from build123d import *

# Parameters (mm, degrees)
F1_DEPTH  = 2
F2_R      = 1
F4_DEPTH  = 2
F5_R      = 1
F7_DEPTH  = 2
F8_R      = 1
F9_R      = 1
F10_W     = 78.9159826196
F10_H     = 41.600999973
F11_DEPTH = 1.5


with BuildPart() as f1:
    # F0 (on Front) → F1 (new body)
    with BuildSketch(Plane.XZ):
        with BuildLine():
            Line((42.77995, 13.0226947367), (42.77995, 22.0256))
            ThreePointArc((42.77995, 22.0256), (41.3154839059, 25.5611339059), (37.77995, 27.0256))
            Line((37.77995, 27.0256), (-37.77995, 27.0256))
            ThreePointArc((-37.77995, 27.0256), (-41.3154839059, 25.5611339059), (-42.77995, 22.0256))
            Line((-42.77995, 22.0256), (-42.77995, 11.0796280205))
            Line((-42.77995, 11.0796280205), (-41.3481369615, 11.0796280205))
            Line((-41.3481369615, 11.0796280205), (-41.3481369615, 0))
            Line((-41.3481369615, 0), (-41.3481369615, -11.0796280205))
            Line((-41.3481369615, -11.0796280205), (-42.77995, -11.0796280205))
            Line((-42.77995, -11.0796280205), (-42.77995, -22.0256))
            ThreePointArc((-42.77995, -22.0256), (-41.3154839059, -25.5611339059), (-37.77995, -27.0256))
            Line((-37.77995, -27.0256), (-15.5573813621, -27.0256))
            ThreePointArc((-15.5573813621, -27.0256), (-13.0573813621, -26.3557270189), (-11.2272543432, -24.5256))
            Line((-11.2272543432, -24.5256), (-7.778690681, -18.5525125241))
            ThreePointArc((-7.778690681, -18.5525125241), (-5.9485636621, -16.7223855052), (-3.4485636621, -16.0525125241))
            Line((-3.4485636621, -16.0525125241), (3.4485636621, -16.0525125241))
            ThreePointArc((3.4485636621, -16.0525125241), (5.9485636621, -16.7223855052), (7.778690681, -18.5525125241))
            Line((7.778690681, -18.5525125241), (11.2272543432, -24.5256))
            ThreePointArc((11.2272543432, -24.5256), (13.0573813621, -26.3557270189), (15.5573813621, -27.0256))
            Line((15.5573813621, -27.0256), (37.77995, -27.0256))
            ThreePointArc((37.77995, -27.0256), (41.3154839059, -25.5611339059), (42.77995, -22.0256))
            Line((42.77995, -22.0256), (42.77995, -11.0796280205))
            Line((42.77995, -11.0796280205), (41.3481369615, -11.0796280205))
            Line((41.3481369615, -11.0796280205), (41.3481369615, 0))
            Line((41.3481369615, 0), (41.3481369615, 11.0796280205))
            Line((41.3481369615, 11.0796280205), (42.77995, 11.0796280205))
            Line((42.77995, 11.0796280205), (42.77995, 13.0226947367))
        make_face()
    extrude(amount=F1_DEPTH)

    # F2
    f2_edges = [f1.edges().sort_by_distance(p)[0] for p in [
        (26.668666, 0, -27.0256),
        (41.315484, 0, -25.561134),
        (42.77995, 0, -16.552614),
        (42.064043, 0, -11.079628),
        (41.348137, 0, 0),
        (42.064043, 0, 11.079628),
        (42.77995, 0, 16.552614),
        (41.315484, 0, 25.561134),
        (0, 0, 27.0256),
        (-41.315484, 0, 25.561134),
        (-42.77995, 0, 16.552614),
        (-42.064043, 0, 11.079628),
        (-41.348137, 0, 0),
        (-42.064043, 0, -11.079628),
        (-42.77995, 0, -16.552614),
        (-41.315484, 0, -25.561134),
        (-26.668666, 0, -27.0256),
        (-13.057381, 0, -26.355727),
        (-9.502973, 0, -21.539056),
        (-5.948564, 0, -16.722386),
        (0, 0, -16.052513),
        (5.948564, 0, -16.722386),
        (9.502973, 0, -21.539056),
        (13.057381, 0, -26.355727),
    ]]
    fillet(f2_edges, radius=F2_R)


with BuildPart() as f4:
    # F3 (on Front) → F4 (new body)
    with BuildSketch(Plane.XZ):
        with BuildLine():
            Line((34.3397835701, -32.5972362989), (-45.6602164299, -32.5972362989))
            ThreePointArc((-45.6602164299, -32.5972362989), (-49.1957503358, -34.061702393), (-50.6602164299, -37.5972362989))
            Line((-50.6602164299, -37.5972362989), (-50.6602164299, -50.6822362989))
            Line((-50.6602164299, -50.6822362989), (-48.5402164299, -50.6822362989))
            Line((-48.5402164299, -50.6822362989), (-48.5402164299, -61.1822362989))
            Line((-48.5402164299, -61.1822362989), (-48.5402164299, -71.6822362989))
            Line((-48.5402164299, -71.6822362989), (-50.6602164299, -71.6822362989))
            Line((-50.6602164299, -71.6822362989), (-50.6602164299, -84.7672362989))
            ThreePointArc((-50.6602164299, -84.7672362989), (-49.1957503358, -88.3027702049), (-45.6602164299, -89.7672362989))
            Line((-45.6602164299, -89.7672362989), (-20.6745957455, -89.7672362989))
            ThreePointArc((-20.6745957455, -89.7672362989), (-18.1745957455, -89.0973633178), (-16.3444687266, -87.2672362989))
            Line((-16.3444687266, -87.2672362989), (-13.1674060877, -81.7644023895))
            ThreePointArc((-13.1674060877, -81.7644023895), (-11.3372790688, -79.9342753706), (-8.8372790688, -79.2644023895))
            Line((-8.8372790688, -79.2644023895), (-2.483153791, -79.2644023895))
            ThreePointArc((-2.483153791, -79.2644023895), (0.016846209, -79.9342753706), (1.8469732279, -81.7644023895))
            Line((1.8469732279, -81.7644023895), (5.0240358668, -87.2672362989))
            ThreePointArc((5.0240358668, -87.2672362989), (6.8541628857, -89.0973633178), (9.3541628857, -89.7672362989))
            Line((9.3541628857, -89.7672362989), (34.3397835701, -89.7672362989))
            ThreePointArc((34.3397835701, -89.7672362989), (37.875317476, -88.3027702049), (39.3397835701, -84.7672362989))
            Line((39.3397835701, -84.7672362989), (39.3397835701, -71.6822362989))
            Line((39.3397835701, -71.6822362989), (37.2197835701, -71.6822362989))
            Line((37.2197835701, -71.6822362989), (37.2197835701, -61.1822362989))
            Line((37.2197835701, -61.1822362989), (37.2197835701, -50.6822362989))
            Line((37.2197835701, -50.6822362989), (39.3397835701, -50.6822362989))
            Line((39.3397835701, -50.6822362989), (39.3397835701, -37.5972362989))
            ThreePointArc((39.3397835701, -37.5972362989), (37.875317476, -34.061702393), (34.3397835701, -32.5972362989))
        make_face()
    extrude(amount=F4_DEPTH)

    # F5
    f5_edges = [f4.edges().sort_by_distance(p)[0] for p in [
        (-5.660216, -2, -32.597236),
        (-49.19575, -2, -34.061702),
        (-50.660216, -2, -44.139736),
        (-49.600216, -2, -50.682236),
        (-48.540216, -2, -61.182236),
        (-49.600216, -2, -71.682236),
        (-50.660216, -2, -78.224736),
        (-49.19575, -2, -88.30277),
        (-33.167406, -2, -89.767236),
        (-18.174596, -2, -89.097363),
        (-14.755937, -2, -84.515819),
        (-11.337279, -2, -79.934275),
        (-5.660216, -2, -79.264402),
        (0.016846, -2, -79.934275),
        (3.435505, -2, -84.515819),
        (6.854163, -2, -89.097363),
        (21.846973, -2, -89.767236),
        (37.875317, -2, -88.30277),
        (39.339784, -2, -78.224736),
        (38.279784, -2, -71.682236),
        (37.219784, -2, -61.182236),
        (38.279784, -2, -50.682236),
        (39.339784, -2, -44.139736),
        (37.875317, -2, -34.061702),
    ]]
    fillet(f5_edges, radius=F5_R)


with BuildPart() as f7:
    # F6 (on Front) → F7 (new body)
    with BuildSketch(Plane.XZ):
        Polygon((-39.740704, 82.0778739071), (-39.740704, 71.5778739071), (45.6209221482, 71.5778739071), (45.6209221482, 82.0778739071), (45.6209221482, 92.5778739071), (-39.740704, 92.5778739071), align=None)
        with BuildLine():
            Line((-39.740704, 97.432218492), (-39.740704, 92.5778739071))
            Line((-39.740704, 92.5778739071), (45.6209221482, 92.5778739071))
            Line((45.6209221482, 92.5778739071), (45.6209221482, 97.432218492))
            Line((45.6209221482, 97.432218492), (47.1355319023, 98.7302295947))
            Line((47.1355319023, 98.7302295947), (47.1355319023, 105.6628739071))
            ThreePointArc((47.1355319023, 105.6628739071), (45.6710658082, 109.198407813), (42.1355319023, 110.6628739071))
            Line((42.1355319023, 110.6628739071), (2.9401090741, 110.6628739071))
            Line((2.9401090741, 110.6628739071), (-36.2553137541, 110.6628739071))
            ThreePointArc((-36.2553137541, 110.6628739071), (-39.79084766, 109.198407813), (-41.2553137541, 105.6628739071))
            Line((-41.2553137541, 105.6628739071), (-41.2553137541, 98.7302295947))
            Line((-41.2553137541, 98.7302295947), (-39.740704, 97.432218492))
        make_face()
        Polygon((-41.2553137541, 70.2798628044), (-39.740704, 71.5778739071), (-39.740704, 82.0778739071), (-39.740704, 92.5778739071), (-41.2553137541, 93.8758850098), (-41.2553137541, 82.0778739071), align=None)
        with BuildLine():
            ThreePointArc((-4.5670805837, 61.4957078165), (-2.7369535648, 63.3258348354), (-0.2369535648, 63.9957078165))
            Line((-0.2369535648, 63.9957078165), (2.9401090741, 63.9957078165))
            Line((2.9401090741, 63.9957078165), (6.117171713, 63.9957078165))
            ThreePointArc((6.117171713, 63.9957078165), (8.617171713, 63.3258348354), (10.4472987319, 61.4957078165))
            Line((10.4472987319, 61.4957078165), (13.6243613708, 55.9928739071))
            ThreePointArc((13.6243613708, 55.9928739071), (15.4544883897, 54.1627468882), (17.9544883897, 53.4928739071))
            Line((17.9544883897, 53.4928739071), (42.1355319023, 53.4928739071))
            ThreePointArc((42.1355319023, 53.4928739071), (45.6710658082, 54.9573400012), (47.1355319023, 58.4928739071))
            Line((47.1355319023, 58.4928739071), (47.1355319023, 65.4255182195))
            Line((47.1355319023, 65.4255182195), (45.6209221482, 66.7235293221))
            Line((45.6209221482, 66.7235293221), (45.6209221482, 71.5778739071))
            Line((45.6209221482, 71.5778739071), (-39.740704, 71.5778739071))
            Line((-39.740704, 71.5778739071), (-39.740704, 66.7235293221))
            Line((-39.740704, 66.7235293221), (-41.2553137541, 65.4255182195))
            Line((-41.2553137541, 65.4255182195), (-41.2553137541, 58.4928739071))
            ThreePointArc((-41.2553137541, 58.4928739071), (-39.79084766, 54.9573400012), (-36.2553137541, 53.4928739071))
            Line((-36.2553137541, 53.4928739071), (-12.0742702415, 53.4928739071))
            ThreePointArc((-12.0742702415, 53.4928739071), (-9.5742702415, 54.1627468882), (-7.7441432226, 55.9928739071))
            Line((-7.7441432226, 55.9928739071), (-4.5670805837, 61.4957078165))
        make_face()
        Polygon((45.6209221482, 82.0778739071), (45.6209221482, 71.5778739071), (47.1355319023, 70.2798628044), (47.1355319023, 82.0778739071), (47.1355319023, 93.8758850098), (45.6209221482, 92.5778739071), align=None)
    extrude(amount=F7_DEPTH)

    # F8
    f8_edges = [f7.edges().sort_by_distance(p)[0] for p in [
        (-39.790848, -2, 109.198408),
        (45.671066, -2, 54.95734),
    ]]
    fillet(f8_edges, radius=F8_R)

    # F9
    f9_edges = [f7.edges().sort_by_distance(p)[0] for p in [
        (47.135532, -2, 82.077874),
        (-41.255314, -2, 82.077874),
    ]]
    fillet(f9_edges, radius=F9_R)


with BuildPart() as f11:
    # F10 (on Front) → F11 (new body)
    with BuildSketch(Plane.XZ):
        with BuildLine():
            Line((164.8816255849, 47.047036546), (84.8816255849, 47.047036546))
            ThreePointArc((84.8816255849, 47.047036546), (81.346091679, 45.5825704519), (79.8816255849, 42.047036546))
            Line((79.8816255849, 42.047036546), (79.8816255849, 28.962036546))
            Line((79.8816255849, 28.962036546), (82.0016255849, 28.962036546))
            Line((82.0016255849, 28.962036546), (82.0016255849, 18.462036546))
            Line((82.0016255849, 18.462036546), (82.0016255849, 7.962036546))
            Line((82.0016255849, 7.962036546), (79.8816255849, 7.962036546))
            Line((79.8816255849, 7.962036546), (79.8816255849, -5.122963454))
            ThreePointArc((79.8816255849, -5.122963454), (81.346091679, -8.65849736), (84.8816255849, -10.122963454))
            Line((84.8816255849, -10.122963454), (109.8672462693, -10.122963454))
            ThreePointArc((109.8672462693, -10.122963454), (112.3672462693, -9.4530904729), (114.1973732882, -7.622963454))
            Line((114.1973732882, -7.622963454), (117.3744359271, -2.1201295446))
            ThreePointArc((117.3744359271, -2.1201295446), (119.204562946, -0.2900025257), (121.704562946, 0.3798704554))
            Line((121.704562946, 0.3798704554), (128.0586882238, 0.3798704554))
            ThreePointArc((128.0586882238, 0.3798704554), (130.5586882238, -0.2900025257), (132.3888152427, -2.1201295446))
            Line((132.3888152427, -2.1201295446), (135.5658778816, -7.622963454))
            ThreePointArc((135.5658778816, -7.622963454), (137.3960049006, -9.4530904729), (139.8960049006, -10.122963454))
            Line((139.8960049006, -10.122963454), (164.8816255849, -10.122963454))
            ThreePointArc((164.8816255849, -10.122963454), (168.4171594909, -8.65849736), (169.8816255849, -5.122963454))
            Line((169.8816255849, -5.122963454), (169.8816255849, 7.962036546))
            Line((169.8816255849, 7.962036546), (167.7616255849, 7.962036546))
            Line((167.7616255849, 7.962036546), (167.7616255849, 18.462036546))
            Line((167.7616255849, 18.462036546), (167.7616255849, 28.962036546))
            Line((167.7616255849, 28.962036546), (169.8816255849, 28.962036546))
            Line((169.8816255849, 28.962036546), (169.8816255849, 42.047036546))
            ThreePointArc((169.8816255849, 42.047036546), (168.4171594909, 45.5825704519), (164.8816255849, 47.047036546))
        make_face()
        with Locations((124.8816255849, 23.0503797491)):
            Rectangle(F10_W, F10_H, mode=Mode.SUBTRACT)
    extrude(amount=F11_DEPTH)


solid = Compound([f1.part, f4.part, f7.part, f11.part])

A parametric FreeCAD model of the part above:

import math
import FreeCAD as App
import Part
import Sketcher

V = App.Vector
Q = App.Units.Quantity


def edges_at(feature, points):
    """Names of the edges that pass closest to the given points."""
    edges = feature.Shape.Edges
    near = lambda p: min(range(len(edges)), key=lambda i: edges[i].distToShape(Part.Vertex(*p))[0])
    return sorted({f"Edge{near(p) + 1}" for p in points})


def add_polygon(sketch, points):
    """Adds a closed chain of lines whose ends are joined by coincident constraints."""
    first, n = sketch.GeometryCount, len(points)
    for a, b in zip(points, points[1:] + points[:1]):
        sketch.addGeometry(Part.LineSegment(App.Vector(*a, 0), App.Vector(*b, 0)), False)
    for i in range(n):
        sketch.addConstraint(Sketcher.Constraint("Coincident", first + i, 2, first + (i + 1) % n, 1))

doc = App.newDocument("Part")
body = doc.addObject("PartDesign::Body", "Body")

# Sketch on XZ plane
sketch1 = doc.addObject("Sketcher::SketchObject", "Sketch")
body.addObject(sketch1)
sketch1.AttachmentSupport = (doc.XZ_Plane, [""])
sketch1.MapMode = "FlatFace"
sketch1.addGeometry([
    Part.ArcOfCircle(Part.Circle(V(37.8, 22, 0), V(0, 0, 1), 5), math.radians(0), math.radians(90)),  # 0
    Part.LineSegment(V(37.8, 27, 0), V(-37.8, 27, 0)),  # 1
    Part.ArcOfCircle(Part.Circle(V(-37.8, 22, 0), V(0, 0, 1), 5), math.radians(90), math.radians(180)),  # 2
    Part.LineSegment(V(-42.8, 22, 0), V(-42.8, 11.1, 0)),  # 3
    Part.LineSegment(V(-42.8, 11.1, 0), V(-41.3, 11.1, 0)),  # 4
    Part.LineSegment(V(-41.3, 11.1, 0), V(-41.3, -11.1, 0)),  # 5
    Part.LineSegment(V(-41.3, -11.1, 0), V(-42.8, -11.1, 0)),  # 6
    Part.LineSegment(V(-42.8, -11.1, 0), V(-42.8, -22, 0)),  # 7
    Part.ArcOfCircle(Part.Circle(V(-37.8, -22, 0), V(0, 0, 1), 5), math.radians(180), math.radians(270)),  # 8
    Part.LineSegment(V(-37.8, -27, 0), V(-15.6, -27, 0)),  # 9
    Part.ArcOfCircle(Part.Circle(V(-15.6, -22, 0), V(0, 0, 1), 5), math.radians(-90), math.radians(-30)),  # 10
    Part.LineSegment(V(-11.2, -24.5, 0), V(-7.8, -18.6, 0)),  # 11
    Part.ArcOfCircle(Part.Circle(V(-3.4, -21.1, 0), V(0, 0, 1), 5), math.radians(90), math.radians(150)),  # 12
    Part.LineSegment(V(-3.4, -16.1, 0), V(3.4, -16.1, 0)),  # 13
    Part.ArcOfCircle(Part.Circle(V(3.4, -21.1, 0), V(0, 0, 1), 5), math.radians(30), math.radians(90)),  # 14
    Part.LineSegment(V(7.8, -18.6, 0), V(11.2, -24.5, 0)),  # 15
    Part.ArcOfCircle(Part.Circle(V(15.6, -22, 0), V(0, 0, 1), 5), math.radians(-150), math.radians(-90)),  # 16
    Part.LineSegment(V(15.6, -27, 0), V(37.8, -27, 0)),  # 17
    Part.ArcOfCircle(Part.Circle(V(37.8, -22, 0), V(0, 0, 1), 5), math.radians(-90), math.radians(0)),  # 18
    Part.LineSegment(V(42.8, -22, 0), V(42.8, -11.1, 0)),  # 19
    Part.LineSegment(V(42.8, -11.1, 0), V(41.3, -11.1, 0)),  # 20
    Part.LineSegment(V(41.3, -11.1, 0), V(41.3, 11.1, 0)),  # 21
    Part.LineSegment(V(41.3, 11.1, 0), V(42.8, 11.1, 0)),  # 22
    Part.LineSegment(V(42.8, 11.1, 0), V(42.8, 22, 0)),  # 23
], False)
sketch1.addConstraint([
    Sketcher.Constraint("Tangent", 0, 2, 1, 1),
    Sketcher.Constraint("Tangent", 1, 2, 2, 1),
    Sketcher.Constraint("Tangent", 2, 2, 3, 1),
    Sketcher.Constraint("Coincident", 3, 2, 4, 1),
    Sketcher.Constraint("Coincident", 4, 2, 5, 1),
    Sketcher.Constraint("Coincident", 5, 2, 6, 1),
    Sketcher.Constraint("Coincident", 6, 2, 7, 1),
    Sketcher.Constraint("Tangent", 7, 2, 8, 1),
    Sketcher.Constraint("Tangent", 8, 2, 9, 1),
    Sketcher.Constraint("Tangent", 9, 2, 10, 1),
    Sketcher.Constraint("Tangent", 10, 2, 11, 1),
    Sketcher.Constraint("Tangent", 11, 2, 12, 2),
    Sketcher.Constraint("Tangent", 12, 1, 13, 1),
    Sketcher.Constraint("Tangent", 13, 2, 14, 2),
    Sketcher.Constraint("Tangent", 14, 1, 15, 1),
    Sketcher.Constraint("Tangent", 15, 2, 16, 1),
    Sketcher.Constraint("Tangent", 16, 2, 17, 1),
    Sketcher.Constraint("Tangent", 17, 2, 18, 1),
    Sketcher.Constraint("Tangent", 18, 2, 19, 1),
    Sketcher.Constraint("Coincident", 19, 2, 20, 1),
    Sketcher.Constraint("Coincident", 20, 2, 21, 1),
    Sketcher.Constraint("Coincident", 21, 2, 22, 1),
    Sketcher.Constraint("Coincident", 22, 2, 23, 1),
    Sketcher.Constraint("Tangent", 23, 2, 0, 1),
    Sketcher.Constraint("Horizontal", 1),
    Sketcher.Constraint("Vertical", 3),
    Sketcher.Constraint("Horizontal", 4),
    Sketcher.Constraint("Vertical", 5),
    Sketcher.Constraint("Horizontal", 6),
    Sketcher.Constraint("Vertical", 7),
    Sketcher.Constraint("Horizontal", 9),
    Sketcher.Constraint("Horizontal", 13),
    Sketcher.Constraint("Horizontal", 17),
    Sketcher.Constraint("Vertical", 19),
    Sketcher.Constraint("Horizontal", 20),
    Sketcher.Constraint("Vertical", 21),
    Sketcher.Constraint("Horizontal", 22),
    Sketcher.Constraint("Vertical", 23),
    Sketcher.Constraint("Equal", 0, 2),
    Sketcher.Constraint("Equal", 2, 8),
    Sketcher.Constraint("Equal", 8, 10),
    Sketcher.Constraint("Equal", 10, 12),
    Sketcher.Constraint("Equal", 12, 14),
    Sketcher.Constraint("Equal", 14, 16),
    Sketcher.Constraint("Equal", 16, 18),
    Sketcher.Constraint("Symmetric", 0, 3, 8, 3, -1, 1),
    Sketcher.Constraint("Symmetric", 2, 3, 18, 3, -1, 1),
    Sketcher.Constraint("Symmetric", 4, 2, 20, 2, -1, 1),
    Sketcher.Constraint("Symmetric", 11, 2, 14, 1, -2),
    Sketcher.Constraint("Symmetric", 6, 2, 19, 2, -2),
    Sketcher.Constraint("Horizontal", 4, 2, 21, 2),
    Sketcher.Constraint("Radius", 0, Q("5 mm")),
    Sketcher.Constraint("Angle", 11, Q("60 deg")),
    Sketcher.Constraint("DistanceX", 1, 2, 1, 1, Q("75.5599 mm")),
    Sketcher.Constraint("DistanceX", 9, 1, 9, 2, Q("22.222569 mm")),
    Sketcher.Constraint("DistanceY", 3, 2, 3, 1, Q("10.945972 mm")),
    Sketcher.Constraint("DistanceY", -1, 1, 0, 3, Q("22.0256 mm")),
    Sketcher.Constraint("DistanceX", 4, 1, 4, 2, Q("1.431813 mm")),
    Sketcher.Constraint("DistanceX", 13, 1, 13, 2, Q("6.897127 mm")),
])
pad1 = doc.addObject("PartDesign::Pad", "Pad")
body.addObject(pad1)
pad1.Profile = sketch1
pad1.Length = 2
doc.recompute()

fillet = doc.addObject("PartDesign::Fillet", "Fillet")
body.addObject(fillet)
fillet.Base = (pad1, edges_at(pad1, [
    (26.669, 0, -27.026),
    (41.315, 0, -25.561),
    (42.78, 0, -16.553),
    (42.064, 0, -11.08),
    (41.348, 0, 0),
    (42.064, 0, 11.08),
    (42.78, 0, 16.553),
    (41.315, 0, 25.561),
    (0, 0, 27.026),
    (-41.315, 0, 25.561),
    (-42.78, 0, 16.553),
    (-42.064, 0, 11.08),
    (-41.348, 0, 0),
    (-42.064, 0, -11.08),
    (-42.78, 0, -16.553),
    (-41.315, 0, -25.561),
    (-26.669, 0, -27.026),
    (-13.057, 0, -26.356),
    (-9.503, 0, -21.539),
    (-5.949, 0, -16.722),
    (0, 0, -16.053),
    (5.949, 0, -16.722),
    (9.503, 0, -21.539),
    (13.057, 0, -26.356),
]))
fillet.Radius = 1
body2 = doc.addObject("PartDesign::Body", "Body001")

# Sketch on XZ plane
sketch2 = doc.addObject("Sketcher::SketchObject", "Sketch001")
body2.addObject(sketch2)
sketch2.AttachmentSupport = (doc.getObject("XZ_Plane001"), [""])
sketch2.MapMode = "FlatFace"
sketch2.addGeometry([
    Part.LineSegment(V(34.3, -32.6, 0), V(-45.7, -32.6, 0)),  # 0
    Part.ArcOfCircle(Part.Circle(V(-45.7, -37.6, 0), V(0, 0, 1), 5), math.radians(90), math.radians(180)),  # 1
    Part.LineSegment(V(-50.7, -37.6, 0), V(-50.7, -50.7, 0)),  # 2
    Part.LineSegment(V(-50.7, -50.7, 0), V(-48.5, -50.7, 0)),  # 3
    Part.LineSegment(V(-48.5, -50.7, 0), V(-48.5, -71.7, 0)),  # 4
    Part.LineSegment(V(-48.5, -71.7, 0), V(-50.7, -71.7, 0)),  # 5
    Part.LineSegment(V(-50.7, -71.7, 0), V(-50.7, -84.8, 0)),  # 6
    Part.ArcOfCircle(Part.Circle(V(-45.7, -84.8, 0), V(0, 0, 1), 5), math.radians(180), math.radians(270)),  # 7
    Part.LineSegment(V(-45.7, -89.8, 0), V(-20.7, -89.8, 0)),  # 8
    Part.ArcOfCircle(Part.Circle(V(-20.7, -84.8, 0), V(0, 0, 1), 5), math.radians(-90), math.radians(-30)),  # 9
    Part.LineSegment(V(-16.3, -87.3, 0), V(-13.2, -81.8, 0)),  # 10
    Part.ArcOfCircle(Part.Circle(V(-8.8, -84.3, 0), V(0, 0, 1), 5), math.radians(90), math.radians(150)),  # 11
    Part.LineSegment(V(-8.8, -79.3, 0), V(-2.5, -79.3, 0)),  # 12
    Part.ArcOfCircle(Part.Circle(V(-2.5, -84.3, 0), V(0, 0, 1), 5), math.radians(30), math.radians(90)),  # 13
    Part.LineSegment(V(1.8, -81.8, 0), V(5, -87.3, 0)),  # 14
    Part.ArcOfCircle(Part.Circle(V(9.4, -84.8, 0), V(0, 0, 1), 5), math.radians(-150), math.radians(-90)),  # 15
    Part.LineSegment(V(9.4, -89.8, 0), V(34.3, -89.8, 0)),  # 16
    Part.ArcOfCircle(Part.Circle(V(34.3, -84.8, 0), V(0, 0, 1), 5), math.radians(-90), math.radians(0)),  # 17
    Part.LineSegment(V(39.3, -84.8, 0), V(39.3, -71.7, 0)),  # 18
    Part.LineSegment(V(39.3, -71.7, 0), V(37.2, -71.7, 0)),  # 19
    Part.LineSegment(V(37.2, -71.7, 0), V(37.2, -50.7, 0)),  # 20
    Part.LineSegment(V(37.2, -50.7, 0), V(39.3, -50.7, 0)),  # 21
    Part.LineSegment(V(39.3, -50.7, 0), V(39.3, -37.6, 0)),  # 22
    Part.ArcOfCircle(Part.Circle(V(34.3, -37.6, 0), V(0, 0, 1), 5), math.radians(0), math.radians(90)),  # 23
], False)
sketch2.addConstraint([
    Sketcher.Constraint("Tangent", 0, 2, 1, 1),
    Sketcher.Constraint("Tangent", 1, 2, 2, 1),
    Sketcher.Constraint("Coincident", 2, 2, 3, 1),
    Sketcher.Constraint("Coincident", 3, 2, 4, 1),
    Sketcher.Constraint("Coincident", 4, 2, 5, 1),
    Sketcher.Constraint("Coincident", 5, 2, 6, 1),
    Sketcher.Constraint("Tangent", 6, 2, 7, 1),
    Sketcher.Constraint("Tangent", 7, 2, 8, 1),
    Sketcher.Constraint("Tangent", 8, 2, 9, 1),
    Sketcher.Constraint("Tangent", 9, 2, 10, 1),
    Sketcher.Constraint("Tangent", 10, 2, 11, 2),
    Sketcher.Constraint("Tangent", 11, 1, 12, 1),
    Sketcher.Constraint("Tangent", 12, 2, 13, 2),
    Sketcher.Constraint("Tangent", 13, 1, 14, 1),
    Sketcher.Constraint("Tangent", 14, 2, 15, 1),
    Sketcher.Constraint("Tangent", 15, 2, 16, 1),
    Sketcher.Constraint("Tangent", 16, 2, 17, 1),
    Sketcher.Constraint("Tangent", 17, 2, 18, 1),
    Sketcher.Constraint("Coincident", 18, 2, 19, 1),
    Sketcher.Constraint("Coincident", 19, 2, 20, 1),
    Sketcher.Constraint("Coincident", 20, 2, 21, 1),
    Sketcher.Constraint("Coincident", 21, 2, 22, 1),
    Sketcher.Constraint("Tangent", 22, 2, 23, 1),
    Sketcher.Constraint("Tangent", 23, 2, 0, 1),
    Sketcher.Constraint("Horizontal", 0),
    Sketcher.Constraint("Vertical", 2),
    Sketcher.Constraint("Horizontal", 3),
    Sketcher.Constraint("Vertical", 4),
    Sketcher.Constraint("Horizontal", 5),
    Sketcher.Constraint("Vertical", 6),
    Sketcher.Constraint("Horizontal", 8),
    Sketcher.Constraint("Horizontal", 12),
    Sketcher.Constraint("Horizontal", 16),
    Sketcher.Constraint("Vertical", 18),
    Sketcher.Constraint("Horizontal", 19),
    Sketcher.Constraint("Vertical", 20),
    Sketcher.Constraint("Horizontal", 21),
    Sketcher.Constraint("Vertical", 22),
    Sketcher.Constraint("Equal", 1, 7),
    Sketcher.Constraint("Equal", 7, 9),
    Sketcher.Constraint("Equal", 9, 11),
    Sketcher.Constraint("Equal", 11, 13),
    Sketcher.Constraint("Equal", 13, 15),
    Sketcher.Constraint("Equal", 15, 17),
    Sketcher.Constraint("Equal", 17, 23),
    Sketcher.Constraint("Horizontal", 9, 3, 15, 3),
    Sketcher.Constraint("Horizontal", 10, 2, 13, 1),
    Sketcher.Constraint("Horizontal", 5, 2, 18, 2),
    Sketcher.Constraint("Horizontal", 3, 2, 20, 2),
    Sketcher.Constraint("Vertical", 1, 3, 7, 3),
    Sketcher.Constraint("Vertical", 17, 3, 23, 3),
    Sketcher.Constraint("Equal", 8, 16),
    Sketcher.Constraint("Equal", 5, 19),
    Sketcher.Constraint("Equal", 2, 6),
    Sketcher.Constraint("Radius", 1, Q("5 mm")),
    Sketcher.Constraint("DistanceX", 0, 2, 0, 1, Q("80 mm")),
    Sketcher.Constraint("DistanceY", 4, 2, 4, 1, Q("21 mm")),
    Sketcher.Constraint("Angle", 10, Q("60 deg")),
    Sketcher.Constraint("DistanceX", 3, 1, 3, 2, Q("2.12 mm")),
    Sketcher.Constraint("DistanceY", 2, 2, 2, 1, Q("13.085 mm")),
    Sketcher.Constraint("DistanceX", 8, 1, 8, 2, Q("24.985621 mm")),
    Sketcher.Constraint("DistanceX", 12, 1, 12, 2, Q("6.354125 mm")),
    Sketcher.Constraint("DistanceX", 11, 3, -1, 1, Q("8.837279 mm")),
    Sketcher.Constraint("DistanceY", 1, 3, -1, 1, Q("37.597236 mm")),
])
pad2 = doc.addObject("PartDesign::Pad", "Pad001")
body2.addObject(pad2)
pad2.Profile = sketch2
pad2.Length = 2
doc.recompute()

fillet2 = doc.addObject("PartDesign::Fillet", "Fillet001")
body2.addObject(fillet2)
fillet2.Base = (pad2, edges_at(pad2, [
    (-5.66, -2, -32.597),
    (-49.196, -2, -34.062),
    (-50.66, -2, -44.14),
    (-49.6, -2, -50.682),
    (-48.54, -2, -61.182),
    (-49.6, -2, -71.682),
    (-50.66, -2, -78.225),
    (-49.196, -2, -88.303),
    (-33.167, -2, -89.767),
    (-18.175, -2, -89.097),
    (-14.756, -2, -84.516),
    (-11.337, -2, -79.934),
    (-5.66, -2, -79.264),
    (0.017, -2, -79.934),
    (3.436, -2, -84.516),
    (6.854, -2, -89.097),
    (21.847, -2, -89.767),
    (37.875, -2, -88.303),
    (39.34, -2, -78.225),
    (38.28, -2, -71.682),
    (37.22, -2, -61.182),
    (38.28, -2, -50.682),
    (39.34, -2, -44.14),
    (37.875, -2, -34.062),
]))
fillet2.Radius = 1
body3 = doc.addObject("PartDesign::Body", "Body002")

# Sketch on XZ plane
sketch3 = doc.addObject("Sketcher::SketchObject", "Sketch002")
body3.addObject(sketch3)
sketch3.AttachmentSupport = (doc.getObject("XZ_Plane002"), [""])
sketch3.MapMode = "FlatFace"
sketch3.addGeometry([
    Part.LineSegment(V(45.6, 97.4, 0), V(47.1, 98.7, 0)),  # 0
    Part.LineSegment(V(47.1, 98.7, 0), V(47.1, 105.7, 0)),  # 1
    Part.ArcOfCircle(Part.Circle(V(42.1, 105.7, 0), V(0, 0, 1), 5), math.radians(0), math.radians(90)),  # 2
    Part.LineSegment(V(42.1, 110.7, 0), V(-36.3, 110.7, 0)),  # 3
    Part.ArcOfCircle(Part.Circle(V(-36.3, 105.7, 0), V(0, 0, 1), 5), math.radians(90), math.radians(180)),  # 4
    Part.LineSegment(V(-41.3, 105.7, 0), V(-41.3, 98.7, 0)),  # 5
    Part.LineSegment(V(-41.3, 98.7, 0), V(-39.7, 97.4, 0)),  # 6
    Part.LineSegment(V(-39.7, 97.4, 0), V(-39.7, 92.6, 0)),  # 7
    Part.LineSegment(V(-39.7, 92.6, 0), V(-41.3, 93.9, 0)),  # 8
    Part.LineSegment(V(-41.3, 93.9, 0), V(-41.3, 70.3, 0)),  # 9
    Part.LineSegment(V(-41.3, 70.3, 0), V(-39.7, 71.6, 0)),  # 10
    Part.LineSegment(V(-39.7, 71.6, 0), V(-39.7, 66.7, 0)),  # 11
    Part.LineSegment(V(-39.7, 66.7, 0), V(-41.3, 65.4, 0)),  # 12
    Part.LineSegment(V(-41.3, 65.4, 0), V(-41.3, 58.5, 0)),  # 13
    Part.ArcOfCircle(Part.Circle(V(-36.3, 58.5, 0), V(0, 0, 1), 5), math.radians(180), math.radians(270)),  # 14
    Part.LineSegment(V(-36.3, 53.5, 0), V(-12.1, 53.5, 0)),  # 15
    Part.ArcOfCircle(Part.Circle(V(-12.1, 58.5, 0), V(0, 0, 1), 5), math.radians(-90), math.radians(-30)),  # 16
    Part.LineSegment(V(-7.7, 56, 0), V(-4.6, 61.5, 0)),  # 17
    Part.ArcOfCircle(Part.Circle(V(-0.2, 59, 0), V(0, 0, 1), 5), math.radians(90), math.radians(150)),  # 18
    Part.LineSegment(V(-0.2, 64, 0), V(6.1, 64, 0)),  # 19
    Part.ArcOfCircle(Part.Circle(V(6.1, 59, 0), V(0, 0, 1), 5), math.radians(30), math.radians(90)),  # 20
    Part.LineSegment(V(10.4, 61.5, 0), V(13.6, 56, 0)),  # 21
    Part.ArcOfCircle(Part.Circle(V(18, 58.5, 0), V(0, 0, 1), 5), math.radians(-150), math.radians(-90)),  # 22
    Part.LineSegment(V(18, 53.5, 0), V(42.1, 53.5, 0)),  # 23
    Part.ArcOfCircle(Part.Circle(V(42.1, 58.5, 0), V(0, 0, 1), 5), math.radians(-90), math.radians(0)),  # 24
    Part.LineSegment(V(47.1, 58.5, 0), V(47.1, 65.4, 0)),  # 25
    Part.LineSegment(V(47.1, 65.4, 0), V(45.6, 66.7, 0)),  # 26
    Part.LineSegment(V(45.6, 66.7, 0), V(45.6, 71.6, 0)),  # 27
    Part.LineSegment(V(45.6, 71.6, 0), V(47.1, 70.3, 0)),  # 28
    Part.LineSegment(V(47.1, 70.3, 0), V(47.1, 93.9, 0)),  # 29
    Part.LineSegment(V(47.1, 93.9, 0), V(45.6, 92.6, 0)),  # 30
    Part.LineSegment(V(45.6, 92.6, 0), V(45.6, 97.4, 0)),  # 31
], False)
sketch3.addConstraint([
    Sketcher.Constraint("Coincident", 0, 2, 1, 1),
    Sketcher.Constraint("Tangent", 1, 2, 2, 1),
    Sketcher.Constraint("Tangent", 2, 2, 3, 1),
    Sketcher.Constraint("Tangent", 3, 2, 4, 1),
    Sketcher.Constraint("Tangent", 4, 2, 5, 1),
    Sketcher.Constraint("Coincident", 5, 2, 6, 1),
    Sketcher.Constraint("Coincident", 6, 2, 7, 1),
    Sketcher.Constraint("Coincident", 7, 2, 8, 1),
    Sketcher.Constraint("Coincident", 8, 2, 9, 1),
    Sketcher.Constraint("Coincident", 9, 2, 10, 1),
    Sketcher.Constraint("Coincident", 10, 2, 11, 1),
    Sketcher.Constraint("Coincident", 11, 2, 12, 1),
    Sketcher.Constraint("Coincident", 12, 2, 13, 1),
    Sketcher.Constraint("Tangent", 13, 2, 14, 1),
    Sketcher.Constraint("Tangent", 14, 2, 15, 1),
    Sketcher.Constraint("Tangent", 15, 2, 16, 1),
    Sketcher.Constraint("Tangent", 16, 2, 17, 1),
    Sketcher.Constraint("Tangent", 17, 2, 18, 2),
    Sketcher.Constraint("Tangent", 18, 1, 19, 1),
    Sketcher.Constraint("Tangent", 19, 2, 20, 2),
    Sketcher.Constraint("Tangent", 20, 1, 21, 1),
    Sketcher.Constraint("Tangent", 21, 2, 22, 1),
    Sketcher.Constraint("Tangent", 22, 2, 23, 1),
    Sketcher.Constraint("Tangent", 23, 2, 24, 1),
    Sketcher.Constraint("Tangent", 24, 2, 25, 1),
    Sketcher.Constraint("Coincident", 25, 2, 26, 1),
    Sketcher.Constraint("Coincident", 26, 2, 27, 1),
    Sketcher.Constraint("Coincident", 27, 2, 28, 1),
    Sketcher.Constraint("Coincident", 28, 2, 29, 1),
    Sketcher.Constraint("Coincident", 29, 2, 30, 1),
    Sketcher.Constraint("Coincident", 30, 2, 31, 1),
    Sketcher.Constraint("Coincident", 31, 2, 0, 1),
    Sketcher.Constraint("Vertical", 1),
    Sketcher.Constraint("Horizontal", 3),
    Sketcher.Constraint("Vertical", 5),
    Sketcher.Constraint("Vertical", 7),
    Sketcher.Constraint("Vertical", 9),
    Sketcher.Constraint("Vertical", 11),
    Sketcher.Constraint("Vertical", 13),
    Sketcher.Constraint("Horizontal", 15),
    Sketcher.Constraint("Horizontal", 19),
    Sketcher.Constraint("Horizontal", 23),
    Sketcher.Constraint("Vertical", 25),
    Sketcher.Constraint("Vertical", 27),
    Sketcher.Constraint("Vertical", 29),
    Sketcher.Constraint("Vertical", 31),
    Sketcher.Constraint("Equal", 2, 4),
    Sketcher.Constraint("Equal", 4, 14),
    Sketcher.Constraint("Equal", 14, 16),
    Sketcher.Constraint("Equal", 16, 18),
    Sketcher.Constraint("Equal", 18, 20),
    Sketcher.Constraint("Equal", 20, 22),
    Sketcher.Constraint("Equal", 22, 24),
    Sketcher.Constraint("Parallel", 6, 8),
    Sketcher.Constraint("Parallel", 0, 10),
    Sketcher.Constraint("Parallel", 10, 12),
    Sketcher.Constraint("Parallel", 8, 26),
    Sketcher.Constraint("Parallel", 26, 28),
    Sketcher.Constraint("Parallel", 12, 30),
    Sketcher.Constraint("Horizontal", 16, 3, 22, 3),
    Sketcher.Constraint("Horizontal", 0, 2, 5, 2),
    Sketcher.Constraint("Horizontal", 17, 2, 20, 1),
    Sketcher.Constraint("Horizontal", 12, 2, 25, 2),
    Sketcher.Constraint("Horizontal", 11, 2, 26, 2),
    Sketcher.Constraint("Horizontal", 10, 2, 27, 2),
    Sketcher.Constraint("Horizontal", 9, 2, 28, 2),
    Sketcher.Constraint("Horizontal", 8, 2, 29, 2),
    Sketcher.Constraint("Horizontal", 7, 2, 30, 2),
    Sketcher.Constraint("Horizontal", 6, 2, 31, 2),
    Sketcher.Constraint("Vertical", 4, 3, 14, 3),
    Sketcher.Constraint("Vertical", 5, 2, 8, 2),
    Sketcher.Constraint("Vertical", 7, 2, 10, 2),
    Sketcher.Constraint("Vertical", 27, 2, 30, 2),
    Sketcher.Constraint("Equal", 15, 23),
    Sketcher.Constraint("Equal", 7, 11),
    Sketcher.Constraint("Equal", 5, 13),
    Sketcher.Constraint("Radius", 2, Q("5 mm")),
    Sketcher.Constraint("Angle", 17, Q("60 deg")),
    Sketcher.Constraint("DistanceY", 10, 2, 7, 2, Q("21 mm")),
    Sketcher.Constraint("DistanceY", 14, 3, 4, 3, Q("47.17 mm")),
    Sketcher.Constraint("DistanceX", -1, 1, 20, 1, Q("10.447299 mm")),
    Sketcher.Constraint("Distance", 0, Q("1.994712 mm")),
    Sketcher.Constraint("DistanceX", 3, 2, 3, 1, Q("78.390846 mm")),
    Sketcher.Constraint("DistanceX", 15, 1, 15, 2, Q("24.181044 mm")),
    Sketcher.Constraint("DistanceX", 19, 1, 19, 2, Q("6.354125 mm")),
    Sketcher.Constraint("DistanceY", 1, 1, 1, 2, Q("6.932644 mm")),
    Sketcher.Constraint("DistanceY", 7, 2, 7, 1, Q("4.854345 mm")),
    Sketcher.Constraint("DistanceY", -1, 1, 0, 2, Q("98.73023 mm")),
])
pad3 = doc.addObject("PartDesign::Pad", "Pad002")
body3.addObject(pad3)
pad3.Profile = sketch3
pad3.Length = 2
doc.recompute()

fillet3 = doc.addObject("PartDesign::Fillet", "Fillet002")
body3.addObject(fillet3)
fillet3.Base = (pad3, edges_at(pad3, [(-39.791, -2, 109.198), (45.671, -2, 54.957)]))
fillet3.Radius = 1
doc.recompute()

fillet4 = doc.addObject("PartDesign::Fillet", "Fillet003")
body3.addObject(fillet4)
fillet4.Base = (fillet3, edges_at(fillet3, [(47.136, -2, 82.078), (-41.255, -2, 82.078)]))
fillet4.Radius = 1
body4 = doc.addObject("PartDesign::Body", "Body003")

# Sketch on XZ plane
sketch4 = doc.addObject("Sketcher::SketchObject", "Sketch003")
body4.addObject(sketch4)
sketch4.AttachmentSupport = (doc.getObject("XZ_Plane003"), [""])
sketch4.MapMode = "FlatFace"
sketch4.addGeometry(Part.LineSegment(V(164.9, 47, 0), V(84.9, 47, 0)), False)  # 0
sketch4.addGeometry(Part.ArcOfCircle(Part.Circle(V(84.9, 42, 0), V(0, 0, 1), 5), math.radians(90), math.radians(180)), False)  # 1
sketch4.addGeometry(Part.LineSegment(V(79.9, 42, 0), V(79.9, 29, 0)), False)  # 2
sketch4.addGeometry(Part.LineSegment(V(79.9, 29, 0), V(82, 29, 0)), False)  # 3
sketch4.addGeometry(Part.LineSegment(V(82, 29, 0), V(82, 8, 0)), False)  # 4
sketch4.addGeometry(Part.LineSegment(V(82, 8, 0), V(79.9, 8, 0)), False)  # 5
sketch4.addGeometry(Part.LineSegment(V(79.9, 8, 0), V(79.9, -5.1, 0)), False)  # 6
sketch4.addGeometry(Part.ArcOfCircle(Part.Circle(V(84.9, -5.1, 0), V(0, 0, 1), 5), math.radians(180), math.radians(270)), False)  # 7
sketch4.addGeometry(Part.LineSegment(V(84.9, -10.1, 0), V(109.9, -10.1, 0)), False)  # 8
sketch4.addGeometry(Part.ArcOfCircle(Part.Circle(V(109.9, -5.1, 0), V(0, 0, 1), 5), math.radians(-90), math.radians(-30)), False)  # 9
sketch4.addGeometry(Part.LineSegment(V(114.2, -7.6, 0), V(117.4, -2.1, 0)), False)  # 10
sketch4.addGeometry(Part.ArcOfCircle(Part.Circle(V(121.7, -4.6, 0), V(0, 0, 1), 5), math.radians(90), math.radians(150)), False)  # 11
sketch4.addGeometry(Part.LineSegment(V(121.7, 0.4, 0), V(128.1, 0.4, 0)), False)  # 12
sketch4.addGeometry(Part.ArcOfCircle(Part.Circle(V(128.1, -4.6, 0), V(0, 0, 1), 5), math.radians(30), math.radians(90)), False)  # 13
sketch4.addGeometry(Part.LineSegment(V(132.4, -2.1, 0), V(135.6, -7.6, 0)), False)  # 14
sketch4.addGeometry(Part.ArcOfCircle(Part.Circle(V(139.9, -5.1, 0), V(0, 0, 1), 5), math.radians(-150), math.radians(-90)), False)  # 15
sketch4.addGeometry(Part.LineSegment(V(139.9, -10.1, 0), V(164.9, -10.1, 0)), False)  # 16
sketch4.addGeometry(Part.ArcOfCircle(Part.Circle(V(164.9, -5.1, 0), V(0, 0, 1), 5), math.radians(-90), math.radians(0)), False)  # 17
sketch4.addGeometry(Part.LineSegment(V(169.9, -5.1, 0), V(169.9, 8, 0)), False)  # 18
sketch4.addGeometry(Part.LineSegment(V(169.9, 8, 0), V(167.8, 8, 0)), False)  # 19
sketch4.addGeometry(Part.LineSegment(V(167.8, 8, 0), V(167.8, 29, 0)), False)  # 20
sketch4.addGeometry(Part.LineSegment(V(167.8, 29, 0), V(169.9, 29, 0)), False)  # 21
sketch4.addGeometry(Part.LineSegment(V(169.9, 29, 0), V(169.9, 42, 0)), False)  # 22
sketch4.addGeometry(Part.ArcOfCircle(Part.Circle(V(164.9, 42, 0), V(0, 0, 1), 5), math.radians(0), math.radians(90)), False)  # 23
add_polygon(sketch4, [(164.3, 2.2), (85.4, 2.2), (85.4, 43.9), (164.3, 43.9)])  # lines 24-27
sketch4.addConstraint([
    Sketcher.Constraint("Tangent", 0, 2, 1, 1),
    Sketcher.Constraint("Tangent", 1, 2, 2, 1),
    Sketcher.Constraint("Coincident", 2, 2, 3, 1),
    Sketcher.Constraint("Coincident", 3, 2, 4, 1),
    Sketcher.Constraint("Coincident", 4, 2, 5, 1),
    Sketcher.Constraint("Coincident", 5, 2, 6, 1),
    Sketcher.Constraint("Tangent", 6, 2, 7, 1),
    Sketcher.Constraint("Tangent", 7, 2, 8, 1),
    Sketcher.Constraint("Tangent", 8, 2, 9, 1),
    Sketcher.Constraint("Tangent", 9, 2, 10, 1),
    Sketcher.Constraint("Tangent", 10, 2, 11, 2),
    Sketcher.Constraint("Tangent", 11, 1, 12, 1),
    Sketcher.Constraint("Tangent", 12, 2, 13, 2),
    Sketcher.Constraint("Tangent", 13, 1, 14, 1),
    Sketcher.Constraint("Tangent", 14, 2, 15, 1),
    Sketcher.Constraint("Tangent", 15, 2, 16, 1),
    Sketcher.Constraint("Tangent", 16, 2, 17, 1),
    Sketcher.Constraint("Tangent", 17, 2, 18, 1),
    Sketcher.Constraint("Coincident", 18, 2, 19, 1),
    Sketcher.Constraint("Coincident", 19, 2, 20, 1),
    Sketcher.Constraint("Coincident", 20, 2, 21, 1),
    Sketcher.Constraint("Coincident", 21, 2, 22, 1),
    Sketcher.Constraint("Tangent", 22, 2, 23, 1),
    Sketcher.Constraint("Tangent", 23, 2, 0, 1),
    Sketcher.Constraint("Horizontal", 0),
    Sketcher.Constraint("Vertical", 2),
    Sketcher.Constraint("Horizontal", 3),
    Sketcher.Constraint("Vertical", 4),
    Sketcher.Constraint("Horizontal", 5),
    Sketcher.Constraint("Vertical", 6),
    Sketcher.Constraint("Horizontal", 8),
    Sketcher.Constraint("Horizontal", 12),
    Sketcher.Constraint("Horizontal", 16),
    Sketcher.Constraint("Vertical", 18),
    Sketcher.Constraint("Horizontal", 19),
    Sketcher.Constraint("Vertical", 20),
    Sketcher.Constraint("Horizontal", 21),
    Sketcher.Constraint("Vertical", 22),
    Sketcher.Constraint("Horizontal", 24),
    Sketcher.Constraint("Vertical", 25),
    Sketcher.Constraint("Horizontal", 26),
    Sketcher.Constraint("Vertical", 27),
    Sketcher.Constraint("Equal", 1, 7),
    Sketcher.Constraint("Equal", 7, 9),
    Sketcher.Constraint("Equal", 9, 11),
    Sketcher.Constraint("Equal", 11, 13),
    Sketcher.Constraint("Equal", 13, 15),
    Sketcher.Constraint("Equal", 15, 17),
    Sketcher.Constraint("Equal", 17, 23),
    Sketcher.Constraint("Horizontal", 9, 3, 15, 3),
    Sketcher.Constraint("Horizontal", 10, 2, 13, 1),
    Sketcher.Constraint("Horizontal", 5, 2, 18, 2),
    Sketcher.Constraint("Horizontal", 3, 2, 20, 2),
    Sketcher.Constraint("Vertical", 1, 3, 7, 3),
    Sketcher.Constraint("Vertical", 17, 3, 23, 3),
    Sketcher.Constraint("Equal", 8, 16),
    Sketcher.Constraint("Equal", 5, 19),
    Sketcher.Constraint("Equal", 2, 6),
    Sketcher.Constraint("Radius", 1, Q("5 mm")),
    Sketcher.Constraint("DistanceX", 0, 2, 0, 1, Q("80 mm")),
    Sketcher.Constraint("DistanceY", 4, 2, 4, 1, Q("21 mm")),
    Sketcher.Constraint("Angle", 10, Q("60 deg")),
    Sketcher.Constraint("DistanceX", 3, 1, 3, 2, Q("2.12 mm")),
    Sketcher.Constraint("DistanceY", 2, 2, 2, 1, Q("13.085 mm")),
    Sketcher.Constraint("DistanceY", 25, 1, 25, 2, Q("41.601 mm")),
    Sketcher.Constraint("DistanceX", 8, 1, 8, 2, Q("24.985621 mm")),
    Sketcher.Constraint("DistanceX", 12, 1, 12, 2, Q("6.354125 mm")),
    Sketcher.Constraint("DistanceX", 24, 2, 24, 1, Q("78.915983 mm")),
    Sketcher.Constraint("DistanceY", 11, 3, -1, 1, Q("4.62013 mm")),
    Sketcher.Constraint("DistanceX", -1, 1, 13, 3, Q("128.058688 mm")),
    Sketcher.Constraint("DistanceY", -1, 1, 24, 2, Q("2.24988 mm")),
    Sketcher.Constraint("DistanceX", 4, 2, 24, 2, Q("3.422009 mm")),
])
pad4 = doc.addObject("PartDesign::Pad", "Pad003")
body4.addObject(pad4)
pad4.Profile = sketch4
pad4.Length = 1.5

doc.recompute()
